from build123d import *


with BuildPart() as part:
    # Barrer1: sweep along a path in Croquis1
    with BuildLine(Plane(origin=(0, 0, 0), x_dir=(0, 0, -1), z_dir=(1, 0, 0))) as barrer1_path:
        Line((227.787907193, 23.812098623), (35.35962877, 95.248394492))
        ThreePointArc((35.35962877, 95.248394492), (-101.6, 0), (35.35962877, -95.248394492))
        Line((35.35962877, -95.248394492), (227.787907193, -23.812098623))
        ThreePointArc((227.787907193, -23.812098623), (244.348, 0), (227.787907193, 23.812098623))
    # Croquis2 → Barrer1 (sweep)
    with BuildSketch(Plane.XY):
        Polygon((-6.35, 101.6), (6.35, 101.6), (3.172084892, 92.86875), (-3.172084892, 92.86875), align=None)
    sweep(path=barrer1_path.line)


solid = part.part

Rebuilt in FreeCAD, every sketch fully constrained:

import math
import FreeCAD as App
import Part
import Sketcher
Q = App.Units.Quantity


def add_polygon(sketch, points):
    """Adds a closed chain of lines whose ends are joined by coincident constraints."""
    first, n = sketch.GeometryCount, len(points)
    for a, b in zip(points, points[1:] + points[:1]):
        sketch.addGeometry(Part.LineSegment(App.Vector(*a, 0), App.Vector(*b, 0)), False)
    for i in range(n):
        sketch.addConstraint(Sketcher.Constraint("Coincident", first + i, 2, first + (i + 1) % n, 1))

doc = App.newDocument("Part")
body = doc.addObject("PartDesign::Body", "Body")

sketch1 = body.newObject("Sketcher::SketchObject", "Sketch")
sketch1.AttachmentSupport = (doc.getObject("XY_Plane"), [""])
sketch1.MapMode = "FlatFace"
add_polygon(sketch1, [(6, 102), (-6, 102), (-3, 93), (3, 93)])
sketch1.addConstraint(Sketcher.Constraint("Horizontal", 0))
sketch1.addConstraint(Sketcher.Constraint("Horizontal", 2))
sketch1.addConstraint(Sketcher.Constraint("Equal", 1, 3))
sketch1.addConstraint(Sketcher.Constraint("DistanceX", 0, 2, 0, 1, Q("0.5 in")))
sketch1.addConstraint(Sketcher.Constraint("DistanceY", -1, 1, 0, 2, Q("4 in")))
sketch1.addConstraint(Sketcher.Constraint("Angle", 1, Q("-70 deg")))
sketch1.addConstraint(Sketcher.Constraint("DistanceX", 0, 2, -1, 1, Q("0.25 in")))
sketch1.addConstraint(Sketcher.Constraint("DistanceY", -1, 1, 1, 2, Q("3.65625 in")))

sketch2 = body.newObject("Sketcher::SketchObject", "Sketch001")
sketch2.AttachmentSupport = (doc.getObject("YZ_Plane"), [""])
sketch2.MapMode = "FlatFace"
sketch2.addGeometry(Part.LineSegment(App.Vector(24, -228, 0), App.Vector(95, -35, 0)), False)
sketch2.addGeometry(Part.ArcOfCircle(Part.Circle(App.Vector(0, 0, 0), App.Vector(0, 0, 1), 102), math.radians(-20), math.radians(200)), False)
sketch2.addGeometry(Part.LineSegment(App.Vector(-95, -35, 0), App.Vector(-24, -228, 0)), False)
sketch2.addGeometry(Part.ArcOfCircle(Part.Circle(App.Vector(0, -219, 0), App.Vector(0, 0, 1), 25), math.radians(-160), math.radians(-20)), False)
sketch2.addConstraint(Sketcher.Constraint("Tangent", 0, 2, 1, 1))
sketch2.addConstraint(Sketcher.Constraint("Tangent", 1, 2, 2, 1))
sketch2.addConstraint(Sketcher.Constraint("Tangent", 2, 2, 3, 1))
sketch2.addConstraint(Sketcher.Constraint("Tangent", 3, 2, 0, 1))
sketch2.addConstraint(Sketcher.Constraint("Coincident", 1, 3, -1, 1))
sketch2.addConstraint(Sketcher.Constraint("PointOnObject", 3, 3, -2))
sketch2.addConstraint(Sketcher.Constraint("Radius", 1, Q("4 in")))
sketch2.addConstraint(Sketcher.Constraint("Radius", 3, Q("1 in")))
sketch2.addConstraint(Sketcher.Constraint("DistanceY", 3, 3, -1, 1, Q("8.62 in")))
doc.recompute()

additivepipe = body.newObject("PartDesign::AdditivePipe", "AdditivePipe")
additivepipe.Profile = sketch1
additivepipe.Spine = (sketch2, ["Edge1", "Edge2", "Edge3", "Edge4"])

doc.recompute()
